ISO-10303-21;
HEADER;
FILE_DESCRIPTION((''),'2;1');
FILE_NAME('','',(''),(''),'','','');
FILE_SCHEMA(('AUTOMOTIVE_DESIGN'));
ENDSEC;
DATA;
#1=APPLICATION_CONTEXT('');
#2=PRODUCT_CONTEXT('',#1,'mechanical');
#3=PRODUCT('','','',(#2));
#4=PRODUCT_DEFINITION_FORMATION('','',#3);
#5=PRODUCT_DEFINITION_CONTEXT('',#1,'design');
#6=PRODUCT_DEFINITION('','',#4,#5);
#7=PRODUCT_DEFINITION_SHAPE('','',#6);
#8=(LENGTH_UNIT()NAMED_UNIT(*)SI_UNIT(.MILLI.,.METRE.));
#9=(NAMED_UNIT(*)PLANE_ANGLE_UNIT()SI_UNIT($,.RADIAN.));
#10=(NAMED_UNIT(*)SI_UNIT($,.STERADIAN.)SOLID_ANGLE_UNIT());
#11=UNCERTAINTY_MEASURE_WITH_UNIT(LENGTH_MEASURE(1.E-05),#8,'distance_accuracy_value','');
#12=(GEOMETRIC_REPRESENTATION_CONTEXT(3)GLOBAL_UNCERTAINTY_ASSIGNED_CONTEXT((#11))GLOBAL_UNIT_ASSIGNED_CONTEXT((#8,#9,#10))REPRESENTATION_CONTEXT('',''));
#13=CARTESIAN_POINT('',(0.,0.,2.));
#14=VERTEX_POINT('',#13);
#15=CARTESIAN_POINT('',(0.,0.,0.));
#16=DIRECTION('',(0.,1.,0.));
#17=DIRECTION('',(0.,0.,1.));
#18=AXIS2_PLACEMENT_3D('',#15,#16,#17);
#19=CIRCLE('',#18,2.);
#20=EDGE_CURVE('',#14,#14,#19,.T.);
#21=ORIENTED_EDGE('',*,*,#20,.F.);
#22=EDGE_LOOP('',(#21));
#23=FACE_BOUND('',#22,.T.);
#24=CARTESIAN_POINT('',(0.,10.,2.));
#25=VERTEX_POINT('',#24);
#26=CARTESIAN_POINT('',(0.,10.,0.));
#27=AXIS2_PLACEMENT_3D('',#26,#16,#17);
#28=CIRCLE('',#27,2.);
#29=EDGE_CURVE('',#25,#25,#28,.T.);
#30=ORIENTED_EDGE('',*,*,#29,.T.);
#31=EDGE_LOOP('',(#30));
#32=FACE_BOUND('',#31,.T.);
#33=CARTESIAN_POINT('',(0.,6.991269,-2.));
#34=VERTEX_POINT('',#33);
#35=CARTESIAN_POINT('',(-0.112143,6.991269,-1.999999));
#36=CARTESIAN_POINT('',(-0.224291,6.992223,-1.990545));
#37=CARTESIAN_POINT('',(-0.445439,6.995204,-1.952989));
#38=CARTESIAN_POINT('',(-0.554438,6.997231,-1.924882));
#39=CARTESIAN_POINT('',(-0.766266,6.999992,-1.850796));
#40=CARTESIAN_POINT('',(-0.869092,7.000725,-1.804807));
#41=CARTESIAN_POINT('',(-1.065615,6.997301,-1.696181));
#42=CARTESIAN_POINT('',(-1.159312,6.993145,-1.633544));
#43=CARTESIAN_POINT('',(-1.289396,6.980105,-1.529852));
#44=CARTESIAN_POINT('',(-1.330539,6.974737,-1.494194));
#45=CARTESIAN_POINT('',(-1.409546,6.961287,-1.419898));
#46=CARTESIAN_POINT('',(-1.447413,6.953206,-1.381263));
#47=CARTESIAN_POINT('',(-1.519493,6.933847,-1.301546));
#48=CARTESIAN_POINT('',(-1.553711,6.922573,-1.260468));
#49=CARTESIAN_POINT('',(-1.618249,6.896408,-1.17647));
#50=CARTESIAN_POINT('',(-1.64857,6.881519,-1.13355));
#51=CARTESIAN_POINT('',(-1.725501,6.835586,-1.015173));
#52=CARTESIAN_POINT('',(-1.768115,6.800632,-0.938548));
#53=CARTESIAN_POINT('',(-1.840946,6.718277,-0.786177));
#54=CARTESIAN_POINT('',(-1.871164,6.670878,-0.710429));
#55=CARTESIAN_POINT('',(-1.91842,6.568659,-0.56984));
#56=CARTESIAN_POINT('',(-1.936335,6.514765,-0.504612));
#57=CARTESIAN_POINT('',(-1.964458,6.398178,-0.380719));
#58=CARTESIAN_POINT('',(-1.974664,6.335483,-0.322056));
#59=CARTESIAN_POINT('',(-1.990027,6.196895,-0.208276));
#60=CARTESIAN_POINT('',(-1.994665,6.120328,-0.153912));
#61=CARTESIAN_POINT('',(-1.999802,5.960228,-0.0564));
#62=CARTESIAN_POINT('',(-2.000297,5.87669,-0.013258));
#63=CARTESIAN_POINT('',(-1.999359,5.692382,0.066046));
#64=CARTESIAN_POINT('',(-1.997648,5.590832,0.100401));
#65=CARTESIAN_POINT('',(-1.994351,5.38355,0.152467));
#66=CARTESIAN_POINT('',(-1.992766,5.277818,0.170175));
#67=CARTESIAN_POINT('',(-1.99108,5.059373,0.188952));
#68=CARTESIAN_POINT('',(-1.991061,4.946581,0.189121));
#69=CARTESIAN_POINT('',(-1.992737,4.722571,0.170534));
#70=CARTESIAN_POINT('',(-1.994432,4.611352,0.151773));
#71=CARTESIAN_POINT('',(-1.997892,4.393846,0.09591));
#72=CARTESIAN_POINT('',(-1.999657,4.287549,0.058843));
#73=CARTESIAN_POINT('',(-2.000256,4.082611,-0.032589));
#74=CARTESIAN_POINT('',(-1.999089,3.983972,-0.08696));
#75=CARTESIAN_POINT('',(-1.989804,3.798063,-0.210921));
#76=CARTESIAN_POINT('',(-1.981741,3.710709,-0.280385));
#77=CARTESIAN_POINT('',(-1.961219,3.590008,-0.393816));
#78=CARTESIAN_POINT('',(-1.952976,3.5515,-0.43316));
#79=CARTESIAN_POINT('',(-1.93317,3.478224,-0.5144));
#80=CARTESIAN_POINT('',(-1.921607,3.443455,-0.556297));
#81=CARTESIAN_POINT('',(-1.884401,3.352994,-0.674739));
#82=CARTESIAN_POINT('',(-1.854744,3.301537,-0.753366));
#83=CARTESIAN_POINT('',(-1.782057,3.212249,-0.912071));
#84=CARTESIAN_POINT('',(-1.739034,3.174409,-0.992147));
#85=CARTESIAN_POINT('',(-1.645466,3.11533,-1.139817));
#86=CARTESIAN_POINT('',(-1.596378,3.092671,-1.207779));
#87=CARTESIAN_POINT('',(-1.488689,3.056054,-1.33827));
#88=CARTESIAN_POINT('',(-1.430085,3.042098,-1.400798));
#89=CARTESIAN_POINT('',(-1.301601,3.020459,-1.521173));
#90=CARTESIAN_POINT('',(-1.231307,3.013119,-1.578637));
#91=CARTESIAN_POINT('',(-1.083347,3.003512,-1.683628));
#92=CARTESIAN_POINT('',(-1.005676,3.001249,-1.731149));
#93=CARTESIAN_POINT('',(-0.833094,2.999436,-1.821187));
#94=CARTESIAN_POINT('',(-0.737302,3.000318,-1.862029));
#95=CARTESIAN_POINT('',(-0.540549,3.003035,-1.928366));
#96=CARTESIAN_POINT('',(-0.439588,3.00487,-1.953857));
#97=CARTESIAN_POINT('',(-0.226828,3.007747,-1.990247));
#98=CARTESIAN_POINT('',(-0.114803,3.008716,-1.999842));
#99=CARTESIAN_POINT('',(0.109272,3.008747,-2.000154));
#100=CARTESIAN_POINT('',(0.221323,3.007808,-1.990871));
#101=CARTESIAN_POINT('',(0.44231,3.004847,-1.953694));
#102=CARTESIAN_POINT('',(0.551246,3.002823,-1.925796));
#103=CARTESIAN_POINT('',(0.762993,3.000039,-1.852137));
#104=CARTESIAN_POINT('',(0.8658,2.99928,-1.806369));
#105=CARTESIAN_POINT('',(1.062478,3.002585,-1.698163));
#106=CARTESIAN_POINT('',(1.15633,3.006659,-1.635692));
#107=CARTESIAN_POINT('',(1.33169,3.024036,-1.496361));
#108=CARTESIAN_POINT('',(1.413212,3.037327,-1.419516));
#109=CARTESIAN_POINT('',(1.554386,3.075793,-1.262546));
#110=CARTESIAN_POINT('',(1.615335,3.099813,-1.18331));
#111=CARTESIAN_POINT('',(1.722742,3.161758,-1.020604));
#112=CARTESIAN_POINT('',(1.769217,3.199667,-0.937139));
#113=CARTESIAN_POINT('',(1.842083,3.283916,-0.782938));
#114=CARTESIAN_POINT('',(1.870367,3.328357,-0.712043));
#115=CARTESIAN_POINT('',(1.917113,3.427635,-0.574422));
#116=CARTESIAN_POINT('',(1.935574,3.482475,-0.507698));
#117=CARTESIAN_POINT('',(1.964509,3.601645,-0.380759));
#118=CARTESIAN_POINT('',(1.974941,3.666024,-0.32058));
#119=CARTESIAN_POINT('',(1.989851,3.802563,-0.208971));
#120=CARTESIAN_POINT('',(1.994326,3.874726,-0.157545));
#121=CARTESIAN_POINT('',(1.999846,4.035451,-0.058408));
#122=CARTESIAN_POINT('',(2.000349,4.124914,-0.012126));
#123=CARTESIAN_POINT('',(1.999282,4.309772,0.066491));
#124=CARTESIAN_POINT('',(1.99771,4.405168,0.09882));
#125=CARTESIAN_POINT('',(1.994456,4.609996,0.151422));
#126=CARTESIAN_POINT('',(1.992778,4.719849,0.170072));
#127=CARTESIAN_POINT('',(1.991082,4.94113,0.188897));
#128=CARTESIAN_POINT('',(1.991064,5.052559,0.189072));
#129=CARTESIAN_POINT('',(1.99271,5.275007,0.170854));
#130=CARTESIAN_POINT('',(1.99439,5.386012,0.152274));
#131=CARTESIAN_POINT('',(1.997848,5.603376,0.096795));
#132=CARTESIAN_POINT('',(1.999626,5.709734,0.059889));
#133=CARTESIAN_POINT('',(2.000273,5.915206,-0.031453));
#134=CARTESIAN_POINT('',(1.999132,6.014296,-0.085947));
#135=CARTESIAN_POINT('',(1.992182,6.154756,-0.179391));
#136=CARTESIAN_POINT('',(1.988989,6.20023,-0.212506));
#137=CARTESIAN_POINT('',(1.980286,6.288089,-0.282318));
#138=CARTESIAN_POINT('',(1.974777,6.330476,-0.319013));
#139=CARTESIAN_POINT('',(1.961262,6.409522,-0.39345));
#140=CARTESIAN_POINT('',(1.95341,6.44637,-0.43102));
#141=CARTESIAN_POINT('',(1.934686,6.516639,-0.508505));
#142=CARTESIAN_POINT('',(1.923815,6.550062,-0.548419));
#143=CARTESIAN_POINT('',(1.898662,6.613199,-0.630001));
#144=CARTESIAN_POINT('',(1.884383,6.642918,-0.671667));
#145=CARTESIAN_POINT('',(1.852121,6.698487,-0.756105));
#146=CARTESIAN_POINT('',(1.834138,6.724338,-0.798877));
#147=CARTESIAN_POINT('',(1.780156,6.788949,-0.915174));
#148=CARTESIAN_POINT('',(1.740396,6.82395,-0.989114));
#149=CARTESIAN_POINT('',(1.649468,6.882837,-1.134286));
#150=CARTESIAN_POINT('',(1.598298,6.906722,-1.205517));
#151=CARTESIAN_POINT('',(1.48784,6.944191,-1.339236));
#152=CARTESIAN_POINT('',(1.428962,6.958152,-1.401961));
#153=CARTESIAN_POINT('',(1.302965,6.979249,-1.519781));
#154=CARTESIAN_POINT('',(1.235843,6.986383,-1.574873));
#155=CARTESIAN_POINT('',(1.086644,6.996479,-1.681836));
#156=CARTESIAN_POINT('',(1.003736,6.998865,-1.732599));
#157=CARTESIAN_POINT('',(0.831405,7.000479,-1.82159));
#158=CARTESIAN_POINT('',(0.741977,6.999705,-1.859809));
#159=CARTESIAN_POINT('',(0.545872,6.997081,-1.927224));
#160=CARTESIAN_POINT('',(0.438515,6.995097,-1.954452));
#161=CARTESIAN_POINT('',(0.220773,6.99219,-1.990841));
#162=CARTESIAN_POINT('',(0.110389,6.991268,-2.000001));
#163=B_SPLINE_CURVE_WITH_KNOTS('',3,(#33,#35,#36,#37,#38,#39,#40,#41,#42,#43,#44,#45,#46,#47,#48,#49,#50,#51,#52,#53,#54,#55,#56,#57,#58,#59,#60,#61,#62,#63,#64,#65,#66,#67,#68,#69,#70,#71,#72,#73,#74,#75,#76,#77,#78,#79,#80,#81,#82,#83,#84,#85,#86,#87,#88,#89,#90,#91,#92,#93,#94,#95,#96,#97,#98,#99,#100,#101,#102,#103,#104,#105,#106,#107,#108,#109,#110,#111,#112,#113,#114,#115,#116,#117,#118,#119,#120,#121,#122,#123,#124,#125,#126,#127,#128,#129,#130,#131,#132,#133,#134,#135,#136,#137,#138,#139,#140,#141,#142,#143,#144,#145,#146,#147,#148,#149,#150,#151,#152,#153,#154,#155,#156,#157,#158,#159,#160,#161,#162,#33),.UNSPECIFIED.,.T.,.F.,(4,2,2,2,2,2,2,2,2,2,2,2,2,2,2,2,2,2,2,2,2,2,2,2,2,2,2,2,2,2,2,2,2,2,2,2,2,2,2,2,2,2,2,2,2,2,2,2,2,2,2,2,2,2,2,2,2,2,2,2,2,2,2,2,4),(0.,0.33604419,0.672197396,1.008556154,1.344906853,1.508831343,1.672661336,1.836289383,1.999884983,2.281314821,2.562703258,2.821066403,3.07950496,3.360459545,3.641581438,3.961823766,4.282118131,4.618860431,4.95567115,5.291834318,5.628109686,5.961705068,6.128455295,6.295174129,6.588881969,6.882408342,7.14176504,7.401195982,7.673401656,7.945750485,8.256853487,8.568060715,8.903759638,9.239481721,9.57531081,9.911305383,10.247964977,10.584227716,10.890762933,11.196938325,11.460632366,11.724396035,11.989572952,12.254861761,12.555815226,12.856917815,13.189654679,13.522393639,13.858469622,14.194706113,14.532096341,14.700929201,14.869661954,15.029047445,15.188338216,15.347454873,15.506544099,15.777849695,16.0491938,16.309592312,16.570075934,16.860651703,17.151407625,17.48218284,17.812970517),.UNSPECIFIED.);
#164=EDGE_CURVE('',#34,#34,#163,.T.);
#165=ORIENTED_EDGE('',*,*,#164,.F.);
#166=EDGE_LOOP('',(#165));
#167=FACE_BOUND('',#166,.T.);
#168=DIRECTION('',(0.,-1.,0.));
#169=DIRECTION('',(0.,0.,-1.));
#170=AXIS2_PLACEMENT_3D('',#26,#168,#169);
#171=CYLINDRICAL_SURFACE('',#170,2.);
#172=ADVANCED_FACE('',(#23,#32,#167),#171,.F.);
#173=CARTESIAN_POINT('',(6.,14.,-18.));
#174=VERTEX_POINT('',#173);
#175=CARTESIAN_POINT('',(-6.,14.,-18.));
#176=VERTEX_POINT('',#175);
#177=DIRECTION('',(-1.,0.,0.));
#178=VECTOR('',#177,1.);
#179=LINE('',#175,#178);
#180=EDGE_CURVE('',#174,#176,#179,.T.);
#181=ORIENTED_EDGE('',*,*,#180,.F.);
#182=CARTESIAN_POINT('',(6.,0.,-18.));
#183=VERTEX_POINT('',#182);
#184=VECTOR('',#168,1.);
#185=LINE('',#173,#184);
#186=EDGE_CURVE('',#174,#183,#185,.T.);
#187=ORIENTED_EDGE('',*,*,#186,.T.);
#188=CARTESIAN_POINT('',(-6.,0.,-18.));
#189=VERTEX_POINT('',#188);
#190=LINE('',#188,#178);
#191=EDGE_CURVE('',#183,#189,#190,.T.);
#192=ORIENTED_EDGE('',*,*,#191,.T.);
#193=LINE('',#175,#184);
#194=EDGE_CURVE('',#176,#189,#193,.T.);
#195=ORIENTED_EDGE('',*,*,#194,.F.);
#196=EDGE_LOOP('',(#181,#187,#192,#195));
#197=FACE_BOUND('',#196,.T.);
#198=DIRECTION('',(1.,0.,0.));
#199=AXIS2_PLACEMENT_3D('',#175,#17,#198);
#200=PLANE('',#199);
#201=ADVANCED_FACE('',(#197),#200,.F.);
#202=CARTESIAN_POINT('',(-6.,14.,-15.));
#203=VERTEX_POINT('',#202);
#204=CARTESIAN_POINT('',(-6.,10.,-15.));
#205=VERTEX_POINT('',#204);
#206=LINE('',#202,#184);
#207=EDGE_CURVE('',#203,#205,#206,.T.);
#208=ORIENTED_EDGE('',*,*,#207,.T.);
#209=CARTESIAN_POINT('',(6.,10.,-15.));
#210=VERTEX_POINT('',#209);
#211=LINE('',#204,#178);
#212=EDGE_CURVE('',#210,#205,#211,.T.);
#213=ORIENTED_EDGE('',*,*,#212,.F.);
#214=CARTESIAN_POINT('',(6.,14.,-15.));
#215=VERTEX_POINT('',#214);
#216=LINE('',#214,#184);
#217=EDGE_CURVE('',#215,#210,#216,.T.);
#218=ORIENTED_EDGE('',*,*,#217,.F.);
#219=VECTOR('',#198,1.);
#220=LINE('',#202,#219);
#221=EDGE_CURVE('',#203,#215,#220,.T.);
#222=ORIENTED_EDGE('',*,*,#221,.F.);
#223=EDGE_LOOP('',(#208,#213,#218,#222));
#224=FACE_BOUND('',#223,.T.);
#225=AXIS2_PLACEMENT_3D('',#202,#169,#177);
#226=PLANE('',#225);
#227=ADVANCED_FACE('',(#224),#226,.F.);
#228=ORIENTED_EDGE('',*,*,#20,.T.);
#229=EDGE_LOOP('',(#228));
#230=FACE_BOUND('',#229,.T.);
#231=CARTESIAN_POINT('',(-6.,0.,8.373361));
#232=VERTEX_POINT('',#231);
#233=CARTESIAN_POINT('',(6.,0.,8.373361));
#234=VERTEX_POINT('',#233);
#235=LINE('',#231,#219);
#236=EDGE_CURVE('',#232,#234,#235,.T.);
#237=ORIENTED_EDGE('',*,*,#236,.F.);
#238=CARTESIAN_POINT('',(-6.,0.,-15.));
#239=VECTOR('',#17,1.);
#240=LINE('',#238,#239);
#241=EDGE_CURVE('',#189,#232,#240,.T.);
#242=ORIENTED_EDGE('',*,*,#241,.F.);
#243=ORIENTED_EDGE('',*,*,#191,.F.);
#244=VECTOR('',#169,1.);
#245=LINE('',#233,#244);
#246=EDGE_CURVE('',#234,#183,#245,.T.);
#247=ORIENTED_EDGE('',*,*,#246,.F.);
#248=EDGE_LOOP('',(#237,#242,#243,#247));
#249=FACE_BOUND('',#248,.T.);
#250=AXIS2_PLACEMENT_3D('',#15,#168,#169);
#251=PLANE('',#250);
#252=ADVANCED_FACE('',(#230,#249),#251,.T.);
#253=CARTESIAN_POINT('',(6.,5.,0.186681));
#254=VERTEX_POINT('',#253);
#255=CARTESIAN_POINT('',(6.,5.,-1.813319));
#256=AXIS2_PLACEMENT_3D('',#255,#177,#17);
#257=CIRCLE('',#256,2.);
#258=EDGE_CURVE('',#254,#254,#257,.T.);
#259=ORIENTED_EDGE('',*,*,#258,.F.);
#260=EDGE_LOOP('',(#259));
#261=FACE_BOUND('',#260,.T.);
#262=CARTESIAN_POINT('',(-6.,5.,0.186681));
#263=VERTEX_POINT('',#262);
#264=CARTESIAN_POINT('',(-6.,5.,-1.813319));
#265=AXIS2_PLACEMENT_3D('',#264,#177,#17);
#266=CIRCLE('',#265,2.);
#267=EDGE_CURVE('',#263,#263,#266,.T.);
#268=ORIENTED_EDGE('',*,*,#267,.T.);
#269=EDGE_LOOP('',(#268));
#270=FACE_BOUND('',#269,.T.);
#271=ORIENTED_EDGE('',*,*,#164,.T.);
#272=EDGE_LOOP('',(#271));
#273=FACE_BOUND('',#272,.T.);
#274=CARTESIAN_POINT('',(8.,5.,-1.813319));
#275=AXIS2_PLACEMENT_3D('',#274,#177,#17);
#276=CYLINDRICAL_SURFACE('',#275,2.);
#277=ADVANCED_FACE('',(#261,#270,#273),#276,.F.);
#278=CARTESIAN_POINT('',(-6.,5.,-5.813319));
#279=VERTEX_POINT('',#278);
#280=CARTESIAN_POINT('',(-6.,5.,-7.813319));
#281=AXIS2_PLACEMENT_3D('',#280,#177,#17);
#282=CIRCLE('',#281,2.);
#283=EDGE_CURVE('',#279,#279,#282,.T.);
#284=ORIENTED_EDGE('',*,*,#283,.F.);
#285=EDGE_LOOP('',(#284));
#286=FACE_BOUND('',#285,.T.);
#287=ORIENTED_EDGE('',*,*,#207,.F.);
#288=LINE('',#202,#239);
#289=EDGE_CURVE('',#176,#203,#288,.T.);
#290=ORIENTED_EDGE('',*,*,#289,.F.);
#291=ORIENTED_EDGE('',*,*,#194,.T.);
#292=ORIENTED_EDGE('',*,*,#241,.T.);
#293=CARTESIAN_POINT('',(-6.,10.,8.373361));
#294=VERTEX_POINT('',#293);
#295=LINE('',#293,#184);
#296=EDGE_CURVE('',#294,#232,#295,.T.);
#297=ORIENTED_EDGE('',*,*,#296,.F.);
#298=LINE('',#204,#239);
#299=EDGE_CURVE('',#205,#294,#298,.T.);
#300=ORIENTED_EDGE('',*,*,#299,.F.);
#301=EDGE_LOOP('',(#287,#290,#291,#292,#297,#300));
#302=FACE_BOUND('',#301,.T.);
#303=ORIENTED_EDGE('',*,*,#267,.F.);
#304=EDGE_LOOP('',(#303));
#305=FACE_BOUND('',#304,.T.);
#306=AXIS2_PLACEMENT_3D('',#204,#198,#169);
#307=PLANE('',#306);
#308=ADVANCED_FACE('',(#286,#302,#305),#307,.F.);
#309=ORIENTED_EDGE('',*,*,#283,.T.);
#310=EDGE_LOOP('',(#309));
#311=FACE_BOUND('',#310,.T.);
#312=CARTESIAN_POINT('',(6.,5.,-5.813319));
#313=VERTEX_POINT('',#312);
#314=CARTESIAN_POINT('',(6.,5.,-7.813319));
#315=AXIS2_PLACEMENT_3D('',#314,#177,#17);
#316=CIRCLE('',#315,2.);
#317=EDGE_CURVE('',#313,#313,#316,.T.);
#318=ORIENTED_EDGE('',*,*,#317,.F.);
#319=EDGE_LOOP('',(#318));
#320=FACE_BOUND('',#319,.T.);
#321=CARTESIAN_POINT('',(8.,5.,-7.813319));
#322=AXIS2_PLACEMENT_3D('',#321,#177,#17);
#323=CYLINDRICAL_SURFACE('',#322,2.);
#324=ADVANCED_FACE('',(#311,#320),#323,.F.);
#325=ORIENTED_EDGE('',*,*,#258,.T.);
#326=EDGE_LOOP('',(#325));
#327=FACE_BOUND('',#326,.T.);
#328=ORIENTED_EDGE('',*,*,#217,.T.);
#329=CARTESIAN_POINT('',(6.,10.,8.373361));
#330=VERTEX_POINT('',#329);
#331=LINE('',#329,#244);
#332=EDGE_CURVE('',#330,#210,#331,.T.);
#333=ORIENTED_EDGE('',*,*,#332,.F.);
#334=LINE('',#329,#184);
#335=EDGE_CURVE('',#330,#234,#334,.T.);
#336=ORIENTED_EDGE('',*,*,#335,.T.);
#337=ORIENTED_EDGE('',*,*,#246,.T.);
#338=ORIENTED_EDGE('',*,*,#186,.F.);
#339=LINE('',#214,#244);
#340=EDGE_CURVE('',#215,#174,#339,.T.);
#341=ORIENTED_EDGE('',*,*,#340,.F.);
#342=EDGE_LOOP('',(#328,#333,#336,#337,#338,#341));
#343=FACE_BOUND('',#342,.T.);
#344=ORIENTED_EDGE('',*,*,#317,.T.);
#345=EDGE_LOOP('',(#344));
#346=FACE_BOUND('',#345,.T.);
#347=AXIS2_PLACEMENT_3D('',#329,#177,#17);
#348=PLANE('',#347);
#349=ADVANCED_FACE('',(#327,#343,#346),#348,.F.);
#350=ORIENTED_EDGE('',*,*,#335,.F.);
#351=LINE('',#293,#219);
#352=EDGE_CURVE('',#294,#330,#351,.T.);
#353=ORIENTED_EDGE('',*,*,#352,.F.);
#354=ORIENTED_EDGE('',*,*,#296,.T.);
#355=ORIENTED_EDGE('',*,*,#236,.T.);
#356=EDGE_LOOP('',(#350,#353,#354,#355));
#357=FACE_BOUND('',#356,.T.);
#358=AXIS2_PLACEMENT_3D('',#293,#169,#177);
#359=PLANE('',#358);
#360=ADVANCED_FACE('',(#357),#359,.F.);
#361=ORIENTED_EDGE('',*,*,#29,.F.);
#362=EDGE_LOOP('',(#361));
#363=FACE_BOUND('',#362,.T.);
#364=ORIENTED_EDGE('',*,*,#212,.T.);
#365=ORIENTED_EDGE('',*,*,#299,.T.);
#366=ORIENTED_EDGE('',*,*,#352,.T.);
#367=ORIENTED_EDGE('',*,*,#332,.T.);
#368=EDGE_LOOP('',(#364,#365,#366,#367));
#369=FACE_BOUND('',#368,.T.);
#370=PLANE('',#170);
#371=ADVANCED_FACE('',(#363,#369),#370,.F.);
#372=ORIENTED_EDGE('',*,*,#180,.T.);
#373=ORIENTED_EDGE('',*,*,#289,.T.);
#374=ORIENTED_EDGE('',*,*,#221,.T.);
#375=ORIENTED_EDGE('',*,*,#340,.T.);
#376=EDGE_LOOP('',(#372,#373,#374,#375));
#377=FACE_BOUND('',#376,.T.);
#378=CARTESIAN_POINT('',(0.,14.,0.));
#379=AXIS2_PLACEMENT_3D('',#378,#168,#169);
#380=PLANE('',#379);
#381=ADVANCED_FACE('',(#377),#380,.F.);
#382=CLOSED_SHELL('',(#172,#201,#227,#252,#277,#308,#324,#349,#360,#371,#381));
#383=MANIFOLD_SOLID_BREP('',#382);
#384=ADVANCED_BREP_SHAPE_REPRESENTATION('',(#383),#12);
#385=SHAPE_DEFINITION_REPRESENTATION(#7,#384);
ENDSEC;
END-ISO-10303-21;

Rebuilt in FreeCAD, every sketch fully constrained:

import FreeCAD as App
import Part
import Sketcher
from FreeCAD import Vector
Q = App.Units.Quantity


def add_polygon(sketch, points):
    """Adds a closed chain of lines whose ends are joined by coincident constraints."""
    first, n = sketch.GeometryCount, len(points)
    for a, b in zip(points, points[1:] + points[:1]):
        sketch.addGeometry(Part.LineSegment(App.Vector(*a, 0), App.Vector(*b, 0)), False)
    for i in range(n):
        sketch.addConstraint(Sketcher.Constraint("Coincident", first + i, 2, first + (i + 1) % n, 1))

doc = App.newDocument("Part")
params = doc.addObject("Spreadsheet::Sheet", "Params")
for row, (alias, value) in enumerate([
    ("sketch1_diameter", "4 mm"),
    ("sketch1_width", "12 mm"),
    ("pad1_length", "10 mm"),
    ("sketch2_width", "12 mm"),
    ("sketch2_height", "3 mm"),
    ("pad2_length", "4 mm"),
    ("pad2_length2", "10 mm"),
    ("sketch3_diameter", "4 mm"),
    ("pocket1_length", "14 mm"),
], start=1):
    params.set(f"A{row}", alias)
    params.set(f"B{row}", "=" + value)
    params.setAlias(f"B{row}", alias)

body = doc.addObject("PartDesign::Body", "Body")

# Sketch on XZ plane
sketch1 = body.newObject("Sketcher::SketchObject", "Sketch")
sketch1.AttachmentSupport = (doc.getObject("XZ_Plane"), [""])
sketch1.MapMode = "FlatFace"
add_polygon(sketch1, [(-6, -15), (-6, 8.4), (6, 8.4), (6, -15)])  # lines 0-3
sketch1.addGeometry(Part.Circle(Vector(0, 0, 0), Vector(0, 0, 1), 2), False)  # 4
sketch1.addConstraint([
    Sketcher.Constraint("Vertical", 0),
    Sketcher.Constraint("Horizontal", 1),
    Sketcher.Constraint("Vertical", 2),
    Sketcher.Constraint("Horizontal", 3),
    Sketcher.Constraint("Coincident", 4, 3, -1, 1),
    Sketcher.Constraint("Diameter", 4, Q("4 mm")),
    Sketcher.Constraint("DistanceX", 1, 1, 1, 2, Q("12 mm")),
    Sketcher.Constraint("DistanceX", 0, 2, -1, 1, Q("6 mm")),
    Sketcher.Constraint("DistanceY", 2, 2, -1, 1, Q("15 mm")),
    Sketcher.Constraint("DistanceY", 0, 1, 0, 2, Q("23.373361 mm")),
])
sketch1.setExpression("Constraints[9]", "Params.sketch1_diameter")
sketch1.setExpression("Constraints[10]", "Params.sketch1_width")
pad1 = body.newObject("PartDesign::Pad", "Pad")
pad1.Profile = sketch1
pad1.setExpression("Length", "Params.pad1_length")
pad1.Reversed = True

# Sketch on XZ plane
sketch2 = body.newObject("Sketcher::SketchObject", "Sketch001")
sketch2.AttachmentSupport = (doc.getObject("XZ_Plane"), [""])
sketch2.MapMode = "FlatFace"
sketch2.AttachmentOffset = App.Placement(Vector(0, 0, -10), App.Rotation())
add_polygon(sketch2, [(-6, -18), (-6, -15), (6, -15), (6, -18)])  # lines 0-3
sketch2.addConstraint([
    Sketcher.Constraint("Vertical", 0),
    Sketcher.Constraint("Horizontal", 1),
    Sketcher.Constraint("Vertical", 2),
    Sketcher.Constraint("Horizontal", 3),
    Sketcher.Constraint("DistanceX", 1, 1, 1, 2, Q("12 mm")),
    Sketcher.Constraint("DistanceY", 0, 1, 0, 2, Q("3 mm")),
    Sketcher.Constraint("DistanceX", 0, 2, -1, 1, Q("6 mm")),
    Sketcher.Constraint("DistanceY", 0, 2, -1, 1, Q("15 mm")),
])
sketch2.setExpression("Constraints[8]", "Params.sketch2_width")
sketch2.setExpression("Constraints[9]", "Params.sketch2_height")
pad2 = body.newObject("PartDesign::Pad", "Pad001")
pad2.Profile = sketch2
pad2.Type = "TwoLengths"
pad2.setExpression("Length", "Params.pad2_length")
pad2.setExpression("Length2", "Params.pad2_length2")
pad2.Reversed = True

# Sketch on YZ plane
sketch3 = body.newObject("Sketcher::SketchObject", "Sketch002")
sketch3.AttachmentSupport = (doc.getObject("YZ_Plane"), [""])
sketch3.MapMode = "FlatFace"
sketch3.AttachmentOffset = App.Placement(Vector(0, 0, -6), App.Rotation())
sketch3.addGeometry([
    Part.Circle(Vector(5, -7.8, 0), Vector(0, 0, 1), 2),
    Part.Circle(Vector(5, -1.8, 0), Vector(0, 0, 1), 2),
], False)
sketch3.addConstraint([
    Sketcher.Constraint("Equal", 0, 1),
    Sketcher.Constraint("Vertical", 0, 3, 1, 3),
    Sketcher.Constraint("Diameter", 0, Q("4 mm")),
    Sketcher.Constraint("DistanceX", -1, 1, 0, 3, Q("5 mm")),
    Sketcher.Constraint("DistanceY", 0, 3, 1, 3, Q("6 mm")),
    Sketcher.Constraint("DistanceY", 0, 3, -1, 1, Q("7.813319 mm")),
])
sketch3.setExpression("Constraints[2]", "Params.sketch3_diameter")
pocket1 = body.newObject("PartDesign::Pocket", "Pocket")
pocket1.Profile = sketch3
pocket1.setExpression("Length", "Params.pocket1_length")
pocket1.Reversed = True

doc.recompute()
